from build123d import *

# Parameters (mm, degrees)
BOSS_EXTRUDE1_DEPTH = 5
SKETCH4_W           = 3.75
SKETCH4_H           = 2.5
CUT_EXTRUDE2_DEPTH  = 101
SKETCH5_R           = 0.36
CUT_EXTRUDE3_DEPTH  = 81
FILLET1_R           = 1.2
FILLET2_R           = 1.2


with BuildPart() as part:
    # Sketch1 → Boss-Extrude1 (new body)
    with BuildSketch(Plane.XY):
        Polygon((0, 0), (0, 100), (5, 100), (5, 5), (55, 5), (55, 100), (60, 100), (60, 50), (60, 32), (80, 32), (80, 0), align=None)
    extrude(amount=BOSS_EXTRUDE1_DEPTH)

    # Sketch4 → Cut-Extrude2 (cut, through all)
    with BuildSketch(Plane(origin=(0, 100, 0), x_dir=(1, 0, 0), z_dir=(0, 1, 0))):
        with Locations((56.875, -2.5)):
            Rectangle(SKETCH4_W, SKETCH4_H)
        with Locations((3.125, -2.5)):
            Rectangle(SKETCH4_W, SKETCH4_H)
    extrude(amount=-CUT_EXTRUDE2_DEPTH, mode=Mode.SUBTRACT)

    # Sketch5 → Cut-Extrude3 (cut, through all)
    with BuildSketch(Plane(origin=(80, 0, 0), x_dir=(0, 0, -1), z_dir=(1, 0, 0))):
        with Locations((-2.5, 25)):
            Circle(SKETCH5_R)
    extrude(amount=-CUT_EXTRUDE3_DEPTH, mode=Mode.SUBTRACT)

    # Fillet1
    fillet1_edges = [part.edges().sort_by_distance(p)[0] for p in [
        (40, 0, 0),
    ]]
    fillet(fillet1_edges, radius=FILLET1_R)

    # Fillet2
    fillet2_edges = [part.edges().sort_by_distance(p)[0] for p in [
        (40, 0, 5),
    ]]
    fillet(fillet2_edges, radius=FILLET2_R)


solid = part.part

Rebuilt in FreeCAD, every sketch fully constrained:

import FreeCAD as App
import Part
import Sketcher


def edges_at(feature, points):
    """Names of the edges that pass closest to the given points."""
    edges = feature.Shape.Edges
    near = lambda p: min(range(len(edges)), key=lambda i: edges[i].distToShape(Part.Vertex(*p))[0])
    return sorted({f"Edge{near(p) + 1}" for p in points})

doc = App.newDocument("Part")
body = doc.addObject("PartDesign::Body", "Body")

# Sketch on XY plane
sketch1 = body.newObject("Sketcher::SketchObject", "Sketch")
sketch1.AttachmentSupport = (doc.getObject("XY_Plane"), [""])
sketch1.MapMode = "FlatFace"
sketch1.addGeometry([
    Part.LineSegment(App.Vector(0, 100, 0), App.Vector(0, 0, 0)),  # 0
    Part.LineSegment(App.Vector(0, 0, 0), App.Vector(80, 0, 0)),  # 1
    Part.LineSegment(App.Vector(80, 0, 0), App.Vector(80, 32, 0)),  # 2
    Part.LineSegment(App.Vector(80, 32, 0), App.Vector(60, 32, 0)),  # 3
    Part.LineSegment(App.Vector(60, 32, 0), App.Vector(60, 100, 0)),  # 4
    Part.LineSegment(App.Vector(60, 100, 0), App.Vector(55, 100, 0)),  # 5
    Part.LineSegment(App.Vector(55, 100, 0), App.Vector(55, 5, 0)),  # 6
    Part.LineSegment(App.Vector(55, 5, 0), App.Vector(5, 5, 0)),  # 7
    Part.LineSegment(App.Vector(5, 5, 0), App.Vector(5, 100, 0)),  # 8
    Part.LineSegment(App.Vector(5, 100, 0), App.Vector(0, 100, 0)),  # 9
], False)
sketch1.addConstraint([
    Sketcher.Constraint("Coincident", 0, 2, 1, 1),
    Sketcher.Constraint("Coincident", 1, 2, 2, 1),
    Sketcher.Constraint("Coincident", 2, 2, 3, 1),
    Sketcher.Constraint("Coincident", 3, 2, 4, 1),
    Sketcher.Constraint("Coincident", 4, 2, 5, 1),
    Sketcher.Constraint("Coincident", 5, 2, 6, 1),
    Sketcher.Constraint("Coincident", 6, 2, 7, 1),
    Sketcher.Constraint("Coincident", 7, 2, 8, 1),
    Sketcher.Constraint("Coincident", 8, 2, 9, 1),
    Sketcher.Constraint("Coincident", 9, 2, 0, 1),
    Sketcher.Constraint("Vertical", 0),
    Sketcher.Constraint("Horizontal", 1),
    Sketcher.Constraint("Vertical", 2),
    Sketcher.Constraint("Horizontal", 3),
    Sketcher.Constraint("Vertical", 4),
    Sketcher.Constraint("Horizontal", 5),
    Sketcher.Constraint("Vertical", 6),
    Sketcher.Constraint("Horizontal", 7),
    Sketcher.Constraint("Vertical", 8),
    Sketcher.Constraint("Horizontal", 9),
    Sketcher.Constraint("Coincident", 0, 2, -1, 1),
    Sketcher.Constraint("Horizontal", 5, 2, 8, 2),
    Sketcher.Constraint("Equal", 5, 9),
    Sketcher.Constraint("DistanceX", 1, 1, 1, 2, 80.0),
    Sketcher.Constraint("DistanceX", 3, 2, 3, 1, 20.0),
    Sketcher.Constraint("DistanceX", 5, 2, 5, 1, 5.0),
    Sketcher.Constraint("DistanceY", 0, 2, 0, 1, 100.0),
    Sketcher.Constraint("DistanceY", 2, 1, 2, 2, 32.0),
    Sketcher.Constraint("DistanceY", 6, 2, 6, 1, 95.0),
])
pad1 = body.newObject("PartDesign::Pad", "Pad")
pad1.Profile = sketch1
pad1.Length = 5

# Sketch on XZ plane
sketch2 = body.newObject("Sketcher::SketchObject", "Sketch001")
sketch2.AttachmentSupport = (doc.getObject("XZ_Plane"), [""])
sketch2.MapMode = "FlatFace"
sketch2.AttachmentOffset = App.Placement(App.Vector(0, 0, -100), App.Rotation())
sketch2.addGeometry([
    Part.LineSegment(App.Vector(55, 1.2, 0), App.Vector(55, 3.8, 0)),  # 0
    Part.LineSegment(App.Vector(55, 3.8, 0), App.Vector(58.8, 3.8, 0)),  # 1
    Part.LineSegment(App.Vector(58.8, 3.8, 0), App.Vector(58.8, 1.2, 0)),  # 2
    Part.LineSegment(App.Vector(58.8, 1.2, 0), App.Vector(55, 1.2, 0)),  # 3
    Part.LineSegment(App.Vector(1.2, 1.2, 0), App.Vector(1.2, 3.8, 0)),  # 4
    Part.LineSegment(App.Vector(1.2, 3.8, 0), App.Vector(5, 3.8, 0)),  # 5
    Part.LineSegment(App.Vector(5, 3.8, 0), App.Vector(5, 1.2, 0)),  # 6
    Part.LineSegment(App.Vector(5, 1.2, 0), App.Vector(1.2, 1.2, 0)),  # 7
], False)
sketch2.addConstraint([
    Sketcher.Constraint("Coincident", 0, 2, 1, 1),
    Sketcher.Constraint("Coincident", 1, 2, 2, 1),
    Sketcher.Constraint("Coincident", 2, 2, 3, 1),
    Sketcher.Constraint("Coincident", 3, 2, 0, 1),
    Sketcher.Constraint("Coincident", 4, 2, 5, 1),
    Sketcher.Constraint("Coincident", 5, 2, 6, 1),
    Sketcher.Constraint("Coincident", 6, 2, 7, 1),
    Sketcher.Constraint("Coincident", 7, 2, 4, 1),
    Sketcher.Constraint("Vertical", 0),
    Sketcher.Constraint("Horizontal", 1),
    Sketcher.Constraint("Vertical", 2),
    Sketcher.Constraint("Horizontal", 3),
    Sketcher.Constraint("Vertical", 4),
    Sketcher.Constraint("Horizontal", 5),
    Sketcher.Constraint("Vertical", 6),
    Sketcher.Constraint("Horizontal", 7),
    Sketcher.Constraint("Horizontal", 1, 2, 4, 2),
    Sketcher.Constraint("Horizontal", 3, 2, 6, 2),
    Sketcher.Constraint("Equal", 3, 5),
    Sketcher.Constraint("DistanceY", 0, 1, 0, 2, 2.5),
    Sketcher.Constraint("DistanceX", -1, 1, 0, 2, 55.0),
    Sketcher.Constraint("DistanceX", -1, 1, 5, 2, 5.0),
    Sketcher.Constraint("DistanceX", 1, 1, 1, 2, 3.75),
    Sketcher.Constraint("DistanceY", -1, 1, 0, 2, 3.75),
])
pocket1 = body.newObject("PartDesign::Pocket", "Pocket")
pocket1.Profile = sketch2
pocket1.Type = "ThroughAll"
pocket1.Reversed = True

# Sketch on YZ plane
sketch3 = body.newObject("Sketcher::SketchObject", "Sketch002")
sketch3.AttachmentSupport = (doc.getObject("YZ_Plane"), [""])
sketch3.MapMode = "FlatFace"
sketch3.AttachmentOffset = App.Placement(App.Vector(0, 0, 80), App.Rotation())
sketch3.addGeometry(Part.Circle(App.Vector(25, 2.5, 0), App.Vector(0, 0, 1), 0.36), False)
sketch3.addConstraint([
    Sketcher.Constraint("Diameter", 0, 0.72),
    Sketcher.Constraint("DistanceX", -1, 1, 0, 3, 25.0),
    Sketcher.Constraint("DistanceY", -1, 1, 0, 3, 2.5),
])
pocket2 = body.newObject("PartDesign::Pocket", "Pocket001")
pocket2.Profile = sketch3
pocket2.Type = "ThroughAll"
doc.recompute()

fillet = body.newObject("PartDesign::Fillet", "Fillet")
fillet.Base = (pocket2, edges_at(pocket2, [(40, 0, 0)]))
fillet.Radius = 1.2
doc.recompute()

fillet2 = body.newObject("PartDesign::Fillet", "Fillet001")
fillet2.Base = (fillet, edges_at(fillet, [(40, 0, 5)]))
fillet2.Radius = 1.2

doc.recompute()
